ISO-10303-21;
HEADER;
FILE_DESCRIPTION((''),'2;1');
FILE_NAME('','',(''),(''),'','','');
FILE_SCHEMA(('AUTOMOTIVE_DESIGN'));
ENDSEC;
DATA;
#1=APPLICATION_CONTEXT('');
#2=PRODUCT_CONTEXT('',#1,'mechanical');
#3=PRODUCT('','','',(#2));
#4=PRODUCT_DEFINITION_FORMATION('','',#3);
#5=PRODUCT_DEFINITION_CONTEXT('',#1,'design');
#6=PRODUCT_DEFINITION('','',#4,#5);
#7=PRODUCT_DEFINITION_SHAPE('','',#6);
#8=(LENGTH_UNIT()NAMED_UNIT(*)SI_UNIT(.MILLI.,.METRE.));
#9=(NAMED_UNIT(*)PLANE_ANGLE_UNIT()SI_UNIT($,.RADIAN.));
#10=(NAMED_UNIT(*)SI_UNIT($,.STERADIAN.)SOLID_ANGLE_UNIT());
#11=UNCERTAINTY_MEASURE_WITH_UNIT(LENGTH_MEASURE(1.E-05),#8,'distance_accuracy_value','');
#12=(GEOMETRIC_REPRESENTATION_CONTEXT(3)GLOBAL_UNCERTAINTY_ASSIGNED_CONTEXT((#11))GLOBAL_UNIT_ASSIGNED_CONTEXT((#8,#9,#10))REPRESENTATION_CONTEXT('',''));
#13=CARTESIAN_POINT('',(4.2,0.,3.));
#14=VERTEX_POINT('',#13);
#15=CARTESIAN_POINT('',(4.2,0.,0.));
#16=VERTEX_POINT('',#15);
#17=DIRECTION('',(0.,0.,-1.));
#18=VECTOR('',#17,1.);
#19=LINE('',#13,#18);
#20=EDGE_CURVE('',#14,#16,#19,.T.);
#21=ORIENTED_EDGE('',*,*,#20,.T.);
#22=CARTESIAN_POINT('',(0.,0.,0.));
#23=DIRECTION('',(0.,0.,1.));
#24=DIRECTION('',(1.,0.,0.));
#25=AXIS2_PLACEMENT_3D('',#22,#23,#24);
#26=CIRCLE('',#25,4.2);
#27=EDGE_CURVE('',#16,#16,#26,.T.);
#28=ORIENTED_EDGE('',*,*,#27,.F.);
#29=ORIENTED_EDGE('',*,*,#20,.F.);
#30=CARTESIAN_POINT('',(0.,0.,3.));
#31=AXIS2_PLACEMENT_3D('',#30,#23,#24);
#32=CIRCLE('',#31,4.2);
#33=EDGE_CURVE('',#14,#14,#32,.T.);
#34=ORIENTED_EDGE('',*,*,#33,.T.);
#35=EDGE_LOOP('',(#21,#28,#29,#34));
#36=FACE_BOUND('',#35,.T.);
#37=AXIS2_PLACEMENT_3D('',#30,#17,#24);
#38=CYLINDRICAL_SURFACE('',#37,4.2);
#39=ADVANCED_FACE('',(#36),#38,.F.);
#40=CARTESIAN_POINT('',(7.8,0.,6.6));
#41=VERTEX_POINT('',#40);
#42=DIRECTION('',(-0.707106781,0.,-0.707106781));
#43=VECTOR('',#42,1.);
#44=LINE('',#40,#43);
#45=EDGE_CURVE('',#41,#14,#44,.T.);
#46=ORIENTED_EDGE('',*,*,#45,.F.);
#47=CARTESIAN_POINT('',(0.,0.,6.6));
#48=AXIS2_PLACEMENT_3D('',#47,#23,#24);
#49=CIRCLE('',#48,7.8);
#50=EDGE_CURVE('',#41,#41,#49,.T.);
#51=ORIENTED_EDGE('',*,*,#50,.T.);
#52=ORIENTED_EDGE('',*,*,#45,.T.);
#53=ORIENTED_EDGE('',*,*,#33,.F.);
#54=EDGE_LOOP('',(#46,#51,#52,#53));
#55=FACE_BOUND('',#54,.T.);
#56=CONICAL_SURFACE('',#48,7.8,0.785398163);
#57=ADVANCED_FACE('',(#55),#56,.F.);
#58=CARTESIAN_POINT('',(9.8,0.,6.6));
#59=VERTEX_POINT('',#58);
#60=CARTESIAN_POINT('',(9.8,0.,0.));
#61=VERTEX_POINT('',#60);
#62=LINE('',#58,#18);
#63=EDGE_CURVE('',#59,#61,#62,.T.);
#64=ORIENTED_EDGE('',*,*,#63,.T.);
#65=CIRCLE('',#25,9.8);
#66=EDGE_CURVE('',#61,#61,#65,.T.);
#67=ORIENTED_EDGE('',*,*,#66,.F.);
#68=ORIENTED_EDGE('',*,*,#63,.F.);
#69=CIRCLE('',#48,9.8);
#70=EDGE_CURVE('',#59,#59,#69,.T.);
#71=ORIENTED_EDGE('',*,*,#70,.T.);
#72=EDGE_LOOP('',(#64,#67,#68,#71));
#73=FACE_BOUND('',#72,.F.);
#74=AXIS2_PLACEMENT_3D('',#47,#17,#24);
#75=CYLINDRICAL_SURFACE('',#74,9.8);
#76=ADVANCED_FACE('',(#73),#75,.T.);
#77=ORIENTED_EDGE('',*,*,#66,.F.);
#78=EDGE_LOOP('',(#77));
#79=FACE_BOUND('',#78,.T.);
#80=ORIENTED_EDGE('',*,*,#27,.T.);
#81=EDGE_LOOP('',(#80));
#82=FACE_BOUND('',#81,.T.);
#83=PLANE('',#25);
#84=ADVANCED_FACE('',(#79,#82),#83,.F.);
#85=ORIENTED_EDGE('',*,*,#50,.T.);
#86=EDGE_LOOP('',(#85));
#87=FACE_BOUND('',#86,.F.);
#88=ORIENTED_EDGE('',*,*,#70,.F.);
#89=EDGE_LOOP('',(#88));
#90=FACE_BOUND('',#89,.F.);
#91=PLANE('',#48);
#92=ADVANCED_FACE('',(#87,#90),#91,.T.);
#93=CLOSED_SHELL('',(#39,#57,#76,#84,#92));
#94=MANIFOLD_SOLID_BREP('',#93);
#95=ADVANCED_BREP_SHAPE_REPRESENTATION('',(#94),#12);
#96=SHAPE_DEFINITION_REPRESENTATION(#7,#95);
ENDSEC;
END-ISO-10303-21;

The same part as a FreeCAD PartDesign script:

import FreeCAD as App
import Part
import Sketcher
Q = App.Units.Quantity

doc = App.newDocument("Part")
body = doc.addObject("PartDesign::Body", "Body")

sketch1 = doc.addObject("Sketcher::SketchObject", "Sketch")
body.addObject(sketch1)
sketch1.AttachmentSupport = (doc.XZ_Plane, [""])
sketch1.MapMode = "FlatFace"
sketch1.addGeometry(Part.LineSegment(App.Vector(9.8, 0, 0), App.Vector(4.2, 0, 0)), False)
sketch1.addGeometry(Part.LineSegment(App.Vector(4.2, 0, 0), App.Vector(4.2, 3, 0)), False)
sketch1.addGeometry(Part.LineSegment(App.Vector(4.2, 3, 0), App.Vector(7.8, 6.6, 0)), False)
sketch1.addGeometry(Part.LineSegment(App.Vector(7.8, 6.6, 0), App.Vector(9.8, 6.6, 0)), False)
sketch1.addGeometry(Part.LineSegment(App.Vector(9.8, 6.6, 0), App.Vector(9.8, 0, 0)), False)
sketch1.addConstraint(Sketcher.Constraint("Coincident", 0, 2, 1, 1))
sketch1.addConstraint(Sketcher.Constraint("Coincident", 1, 2, 2, 1))
sketch1.addConstraint(Sketcher.Constraint("Coincident", 2, 2, 3, 1))
sketch1.addConstraint(Sketcher.Constraint("Coincident", 3, 2, 4, 1))
sketch1.addConstraint(Sketcher.Constraint("Coincident", 4, 2, 0, 1))
sketch1.addConstraint(Sketcher.Constraint("Horizontal", 0))
sketch1.addConstraint(Sketcher.Constraint("Vertical", 1))
sketch1.addConstraint(Sketcher.Constraint("Horizontal", 3))
sketch1.addConstraint(Sketcher.Constraint("Vertical", 4))
sketch1.addConstraint(Sketcher.Constraint("PointOnObject", 0, 2, -1))
sketch1.addConstraint(Sketcher.Constraint("DistanceX", 3, 1, 3, 2, 2.0))
sketch1.addConstraint(Sketcher.Constraint("DistanceY", 1, 1, 1, 2, 3.0))
sketch1.addConstraint(Sketcher.Constraint("DistanceX", -1, 1, 0, 2, 4.2))
sketch1.addConstraint(Sketcher.Constraint("DistanceX", -1, 1, 3, 2, 9.8))
sketch1.addConstraint(Sketcher.Constraint("Angle", 2, Q("45 deg")))
revolution = doc.addObject("PartDesign::Revolution", "Revolution")
body.addObject(revolution)
revolution.Profile = sketch1
revolution.ReferenceAxis = (sketch1, ["V_Axis"])
revolution.Angle = 360

doc.recompute()
